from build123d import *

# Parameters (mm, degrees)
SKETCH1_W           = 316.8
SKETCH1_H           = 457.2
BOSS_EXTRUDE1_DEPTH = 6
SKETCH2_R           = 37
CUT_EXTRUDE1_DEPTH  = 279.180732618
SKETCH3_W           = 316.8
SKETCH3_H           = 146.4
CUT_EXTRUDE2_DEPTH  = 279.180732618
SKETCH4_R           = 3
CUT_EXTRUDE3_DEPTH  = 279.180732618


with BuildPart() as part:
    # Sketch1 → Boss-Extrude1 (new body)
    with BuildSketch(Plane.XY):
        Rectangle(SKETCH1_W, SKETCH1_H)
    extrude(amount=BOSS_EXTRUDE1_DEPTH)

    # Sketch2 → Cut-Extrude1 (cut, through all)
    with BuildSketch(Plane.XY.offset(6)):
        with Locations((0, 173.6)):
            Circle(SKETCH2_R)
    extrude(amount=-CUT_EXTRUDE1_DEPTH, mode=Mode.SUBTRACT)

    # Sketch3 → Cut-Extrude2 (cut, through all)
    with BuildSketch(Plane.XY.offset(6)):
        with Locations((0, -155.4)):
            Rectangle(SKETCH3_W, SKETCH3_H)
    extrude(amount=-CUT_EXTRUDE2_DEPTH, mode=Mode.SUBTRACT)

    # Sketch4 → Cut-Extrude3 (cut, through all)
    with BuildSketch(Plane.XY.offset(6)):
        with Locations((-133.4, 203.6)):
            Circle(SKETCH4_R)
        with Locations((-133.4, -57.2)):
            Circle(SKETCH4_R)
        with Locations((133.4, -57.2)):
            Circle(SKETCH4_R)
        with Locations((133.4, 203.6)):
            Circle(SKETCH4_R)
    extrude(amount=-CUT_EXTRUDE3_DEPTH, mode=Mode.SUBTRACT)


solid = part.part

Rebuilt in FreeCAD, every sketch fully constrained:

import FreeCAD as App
import Part
import Sketcher
from FreeCAD import Vector

doc = App.newDocument("Part")
body = doc.addObject("PartDesign::Body", "Body")

sketch1 = body.newObject("Sketcher::SketchObject", "Sketch")
sketch1.AttachmentSupport = (doc.getObject("XY_Plane"), [""])
sketch1.MapMode = "FlatFace"
sketch1.addGeometry([
    Part.LineSegment(Vector(-158.4, 228.6, 0), Vector(-158.4, -228.6, 0)),
    Part.LineSegment(Vector(-158.4, -228.6, 0), Vector(158.4, -228.6, 0)),
    Part.LineSegment(Vector(158.4, -228.6, 0), Vector(158.4, 228.6, 0)),
    Part.LineSegment(Vector(158.4, 228.6, 0), Vector(-158.4, 228.6, 0)),
], False)
sketch1.addConstraint([
    Sketcher.Constraint("Coincident", 0, 2, 1, 1),
    Sketcher.Constraint("Coincident", 1, 2, 2, 1),
    Sketcher.Constraint("Coincident", 2, 2, 3, 1),
    Sketcher.Constraint("Coincident", 3, 2, 0, 1),
    Sketcher.Constraint("Vertical", 0),
    Sketcher.Constraint("Horizontal", 1),
    Sketcher.Constraint("Vertical", 2),
    Sketcher.Constraint("Horizontal", 3),
    Sketcher.Constraint("Symmetric", 0, 2, 2, 2, -1, 1),
    Sketcher.Constraint("DistanceX", 1, 1, 1, 2, 316.8),
    Sketcher.Constraint("DistanceY", 0, 2, 0, 1, 457.2),
])
pad1 = body.newObject("PartDesign::Pad", "Pad")
pad1.Profile = sketch1
pad1.Length = 6

sketch2 = body.newObject("Sketcher::SketchObject", "Sketch001")
sketch2.AttachmentSupport = (doc.getObject("XY_Plane"), [""])
sketch2.MapMode = "FlatFace"
sketch2.AttachmentOffset = App.Placement(Vector(0, 0, 6), App.Rotation())
sketch2.addGeometry(Part.Circle(Vector(0, 173.6, 0), Vector(0, 0, 1), 37), False)
sketch2.addConstraint([
    Sketcher.Constraint("PointOnObject", 0, 3, -2),
    Sketcher.Constraint("Diameter", 0, 74.0),
    Sketcher.Constraint("DistanceY", -1, 1, 0, 3, 173.6),
])
pocket1 = body.newObject("PartDesign::Pocket", "Pocket")
pocket1.Profile = sketch2
pocket1.Type = "ThroughAll"

sketch3 = body.newObject("Sketcher::SketchObject", "Sketch002")
sketch3.AttachmentSupport = (doc.getObject("XY_Plane"), [""])
sketch3.MapMode = "FlatFace"
sketch3.AttachmentOffset = App.Placement(Vector(0, 0, 6), App.Rotation())
sketch3.addGeometry([
    Part.LineSegment(Vector(-158.4, -82.2, 0), Vector(-158.4, -228.6, 0)),
    Part.LineSegment(Vector(-158.4, -228.6, 0), Vector(158.4, -228.6, 0)),
    Part.LineSegment(Vector(158.4, -228.6, 0), Vector(158.4, -82.2, 0)),
    Part.LineSegment(Vector(158.4, -82.2, 0), Vector(-158.4, -82.2, 0)),
], False)
sketch3.addConstraint([
    Sketcher.Constraint("Coincident", 0, 2, 1, 1),
    Sketcher.Constraint("Coincident", 1, 2, 2, 1),
    Sketcher.Constraint("Coincident", 2, 2, 3, 1),
    Sketcher.Constraint("Coincident", 3, 2, 0, 1),
    Sketcher.Constraint("Vertical", 0),
    Sketcher.Constraint("Horizontal", 1),
    Sketcher.Constraint("Vertical", 2),
    Sketcher.Constraint("Horizontal", 3),
    Sketcher.Constraint("DistanceX", 1, 1, 1, 2, 316.8),
    Sketcher.Constraint("DistanceY", 0, 2, 0, 1, 146.4),
    Sketcher.Constraint("DistanceX", 0, 2, -1, 1, 158.4),
    Sketcher.Constraint("DistanceY", 0, 2, -1, 1, 228.6),
])
pocket2 = body.newObject("PartDesign::Pocket", "Pocket001")
pocket2.Profile = sketch3
pocket2.Type = "ThroughAll"

sketch4 = body.newObject("Sketcher::SketchObject", "Sketch003")
sketch4.AttachmentSupport = (doc.getObject("XY_Plane"), [""])
sketch4.MapMode = "FlatFace"
sketch4.AttachmentOffset = App.Placement(Vector(0, 0, 6), App.Rotation())
sketch4.addGeometry([
    Part.Circle(Vector(-133.4, 203.6, 0), Vector(0, 0, 1), 3),
    Part.Circle(Vector(-133.4, -57.2, 0), Vector(0, 0, 1), 3),
    Part.Circle(Vector(133.4, -57.2, 0), Vector(0, 0, 1), 3),
    Part.Circle(Vector(133.4, 203.6, 0), Vector(0, 0, 1), 3),
], False)
sketch4.addConstraint([
    Sketcher.Constraint("Equal", 0, 1),
    Sketcher.Constraint("Equal", 1, 2),
    Sketcher.Constraint("Equal", 2, 3),
    Sketcher.Constraint("Symmetric", 1, 3, 2, 3, -2),
    Sketcher.Constraint("Symmetric", 0, 3, 3, 3, -2),
    Sketcher.Constraint("Vertical", 0, 3, 1, 3),
    Sketcher.Constraint("Diameter", 0, 6.0),
    Sketcher.Constraint("DistanceX", 0, 3, -1, 1, 133.4),
    Sketcher.Constraint("DistanceY", -1, 1, 0, 3, 203.6),
    Sketcher.Constraint("DistanceY", 1, 3, -1, 1, 57.2),
])
pocket3 = body.newObject("PartDesign::Pocket", "Pocket002")
pocket3.Profile = sketch4
pocket3.Type = "ThroughAll"

doc.recompute()
